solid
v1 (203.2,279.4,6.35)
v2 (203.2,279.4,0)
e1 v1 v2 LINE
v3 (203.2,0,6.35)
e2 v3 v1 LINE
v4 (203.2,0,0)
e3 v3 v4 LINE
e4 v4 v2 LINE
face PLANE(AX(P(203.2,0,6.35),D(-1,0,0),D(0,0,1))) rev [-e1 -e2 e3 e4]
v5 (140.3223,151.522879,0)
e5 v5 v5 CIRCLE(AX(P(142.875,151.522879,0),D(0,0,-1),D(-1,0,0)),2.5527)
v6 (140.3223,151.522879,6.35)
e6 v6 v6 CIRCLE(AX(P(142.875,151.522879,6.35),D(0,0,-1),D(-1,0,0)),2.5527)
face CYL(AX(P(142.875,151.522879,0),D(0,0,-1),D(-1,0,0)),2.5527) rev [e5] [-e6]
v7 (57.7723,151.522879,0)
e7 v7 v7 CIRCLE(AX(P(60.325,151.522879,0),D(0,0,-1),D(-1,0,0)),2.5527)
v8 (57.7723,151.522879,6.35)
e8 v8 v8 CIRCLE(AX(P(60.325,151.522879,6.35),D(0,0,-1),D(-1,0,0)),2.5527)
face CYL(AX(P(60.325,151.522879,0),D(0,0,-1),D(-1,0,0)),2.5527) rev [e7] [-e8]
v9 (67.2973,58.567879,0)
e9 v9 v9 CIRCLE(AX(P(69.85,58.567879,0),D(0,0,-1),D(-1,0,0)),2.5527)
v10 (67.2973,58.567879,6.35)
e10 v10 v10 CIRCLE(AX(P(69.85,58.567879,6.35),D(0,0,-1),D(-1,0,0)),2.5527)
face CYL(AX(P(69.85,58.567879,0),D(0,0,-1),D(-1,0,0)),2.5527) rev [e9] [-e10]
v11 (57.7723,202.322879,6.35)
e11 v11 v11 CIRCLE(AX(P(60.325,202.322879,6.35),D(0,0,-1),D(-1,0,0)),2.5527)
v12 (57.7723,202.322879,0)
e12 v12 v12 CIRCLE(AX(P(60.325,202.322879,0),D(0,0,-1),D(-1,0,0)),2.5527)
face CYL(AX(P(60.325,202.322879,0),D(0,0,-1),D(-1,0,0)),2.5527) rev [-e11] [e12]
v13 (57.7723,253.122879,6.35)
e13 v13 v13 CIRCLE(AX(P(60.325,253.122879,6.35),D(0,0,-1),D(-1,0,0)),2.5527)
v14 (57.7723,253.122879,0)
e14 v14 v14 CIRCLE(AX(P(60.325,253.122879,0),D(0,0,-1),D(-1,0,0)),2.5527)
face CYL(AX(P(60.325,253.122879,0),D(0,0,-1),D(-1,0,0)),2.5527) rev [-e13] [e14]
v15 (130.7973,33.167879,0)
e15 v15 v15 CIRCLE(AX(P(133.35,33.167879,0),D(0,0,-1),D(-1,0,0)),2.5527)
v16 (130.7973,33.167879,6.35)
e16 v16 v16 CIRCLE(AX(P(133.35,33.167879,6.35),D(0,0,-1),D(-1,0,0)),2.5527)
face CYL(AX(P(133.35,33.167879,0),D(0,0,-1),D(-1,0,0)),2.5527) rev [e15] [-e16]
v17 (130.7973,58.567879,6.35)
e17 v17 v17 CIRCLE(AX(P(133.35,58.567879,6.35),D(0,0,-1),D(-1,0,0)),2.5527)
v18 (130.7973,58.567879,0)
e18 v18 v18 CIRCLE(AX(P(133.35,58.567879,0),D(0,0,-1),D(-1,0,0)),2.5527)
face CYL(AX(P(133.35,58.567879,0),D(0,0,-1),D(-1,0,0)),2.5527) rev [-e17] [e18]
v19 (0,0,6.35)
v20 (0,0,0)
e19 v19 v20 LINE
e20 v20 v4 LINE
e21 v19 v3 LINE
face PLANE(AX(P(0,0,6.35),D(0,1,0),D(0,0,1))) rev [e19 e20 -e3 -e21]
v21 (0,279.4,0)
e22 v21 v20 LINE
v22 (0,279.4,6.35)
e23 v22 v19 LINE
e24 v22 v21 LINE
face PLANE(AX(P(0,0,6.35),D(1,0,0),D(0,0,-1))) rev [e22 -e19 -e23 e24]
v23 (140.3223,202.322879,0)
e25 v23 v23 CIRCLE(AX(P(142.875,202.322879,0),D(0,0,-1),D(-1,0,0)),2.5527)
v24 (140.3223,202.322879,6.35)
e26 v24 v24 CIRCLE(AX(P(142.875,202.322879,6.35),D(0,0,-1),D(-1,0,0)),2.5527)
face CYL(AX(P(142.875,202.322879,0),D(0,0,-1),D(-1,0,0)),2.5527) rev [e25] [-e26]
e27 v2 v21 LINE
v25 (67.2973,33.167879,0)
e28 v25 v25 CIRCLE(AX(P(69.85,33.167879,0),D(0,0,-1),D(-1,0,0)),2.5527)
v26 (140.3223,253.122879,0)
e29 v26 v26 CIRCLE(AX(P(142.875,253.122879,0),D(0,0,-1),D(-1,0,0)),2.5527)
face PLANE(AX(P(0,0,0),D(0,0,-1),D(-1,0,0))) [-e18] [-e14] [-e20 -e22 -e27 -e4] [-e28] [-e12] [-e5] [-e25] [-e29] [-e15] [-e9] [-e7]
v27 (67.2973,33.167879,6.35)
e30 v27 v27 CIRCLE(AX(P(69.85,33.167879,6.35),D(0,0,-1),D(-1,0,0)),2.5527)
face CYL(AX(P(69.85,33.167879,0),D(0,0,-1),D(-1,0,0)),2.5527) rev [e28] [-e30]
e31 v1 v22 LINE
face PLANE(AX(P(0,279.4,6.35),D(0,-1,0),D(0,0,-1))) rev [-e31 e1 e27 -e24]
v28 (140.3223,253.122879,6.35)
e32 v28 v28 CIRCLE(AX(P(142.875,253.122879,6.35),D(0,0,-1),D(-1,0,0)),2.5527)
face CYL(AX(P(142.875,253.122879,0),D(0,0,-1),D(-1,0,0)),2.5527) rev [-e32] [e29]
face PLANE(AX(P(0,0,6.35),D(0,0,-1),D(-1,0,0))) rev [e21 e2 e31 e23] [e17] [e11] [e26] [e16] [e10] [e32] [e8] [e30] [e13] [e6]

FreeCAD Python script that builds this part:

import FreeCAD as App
import Part
import Sketcher
Q = App.Units.Quantity


def add_polygon(sketch, points):
    """Adds a closed chain of lines whose ends are joined by coincident constraints."""
    first, n = sketch.GeometryCount, len(points)
    for a, b in zip(points, points[1:] + points[:1]):
        sketch.addGeometry(Part.LineSegment(App.Vector(*a, 0), App.Vector(*b, 0)), False)
    for i in range(n):
        sketch.addConstraint(Sketcher.Constraint("Coincident", first + i, 2, first + (i + 1) % n, 1))

doc = App.newDocument("Part")
body = doc.addObject("PartDesign::Body", "Body")

# Sketch on XY plane
sketch1 = body.newObject("Sketcher::SketchObject", "Sketch")
sketch1.AttachmentSupport = (doc.getObject("XY_Plane"), [""])
sketch1.MapMode = "FlatFace"
add_polygon(sketch1, [(0, 279.4), (0, 0), (203.2, 0), (203.2, 279.4)])  # lines 0-3
sketch1.addConstraint([
    Sketcher.Constraint("Vertical", 0),
    Sketcher.Constraint("Horizontal", 1),
    Sketcher.Constraint("Vertical", 2),
    Sketcher.Constraint("Horizontal", 3),
    Sketcher.Constraint("Coincident", 0, 2, -1, 1),
    Sketcher.Constraint("DistanceX", 1, 1, 1, 2, Q("8 in")),
    Sketcher.Constraint("DistanceY", 0, 2, 0, 1, Q("11 in")),
])
pad1 = body.newObject("PartDesign::Pad", "Pad")
pad1.Profile = sketch1
pad1.Length = Q("0.25 in")

# Sketch on XY plane
sketch2 = body.newObject("Sketcher::SketchObject", "Sketch001")
sketch2.AttachmentSupport = (doc.getObject("XY_Plane"), [""])
sketch2.MapMode = "FlatFace"
sketch2.addGeometry([
    Part.Circle(App.Vector(60.325, 253.122879, 0), App.Vector(0, 0, 1), 2.5527),  # 0
    Part.Circle(App.Vector(142.875, 253.122879, 0), App.Vector(0, 0, 1), 2.5527),  # 1
    Part.Circle(App.Vector(142.875, 202.322879, 0), App.Vector(0, 0, 1), 2.5527),  # 2
    Part.Circle(App.Vector(142.875, 151.522879, 0), App.Vector(0, 0, 1), 2.5527),  # 3
    Part.Circle(App.Vector(60.325, 151.522879, 0), App.Vector(0, 0, 1), 2.5527),  # 4
    Part.Circle(App.Vector(60.325, 202.322879, 0), App.Vector(0, 0, 1), 2.5527),  # 5
    Part.Circle(App.Vector(133.35, 58.567879, 0), App.Vector(0, 0, 1), 2.5527),  # 6
    Part.Circle(App.Vector(133.35, 33.167879, 0), App.Vector(0, 0, 1), 2.5527),  # 7
    Part.Circle(App.Vector(69.85, 33.167879, 0), App.Vector(0, 0, 1), 2.5527),  # 8
    Part.Circle(App.Vector(69.85, 58.567879, 0), App.Vector(0, 0, 1), 2.5527),  # 9
], False)
sketch2.addConstraint([
    Sketcher.Constraint("Equal", 0, 1),
    Sketcher.Constraint("Equal", 1, 2),
    Sketcher.Constraint("Equal", 2, 3),
    Sketcher.Constraint("Equal", 3, 4),
    Sketcher.Constraint("Equal", 4, 5),
    Sketcher.Constraint("Equal", 5, 6),
    Sketcher.Constraint("Equal", 6, 7),
    Sketcher.Constraint("Equal", 7, 8),
    Sketcher.Constraint("Equal", 8, 9),
    Sketcher.Constraint("Horizontal", 0, 3, 1, 3),
    Sketcher.Constraint("Horizontal", 3, 3, 4, 3),
    Sketcher.Constraint("Horizontal", 2, 3, 5, 3),
    Sketcher.Constraint("Horizontal", 7, 3, 8, 3),
    Sketcher.Constraint("Horizontal", 6, 3, 9, 3),
    Sketcher.Constraint("Vertical", 1, 3, 2, 3),
    Sketcher.Constraint("Vertical", 2, 3, 3, 3),
    Sketcher.Constraint("Vertical", 0, 3, 4, 3),
    Sketcher.Constraint("Vertical", 4, 3, 5, 3),
    Sketcher.Constraint("Vertical", 6, 3, 7, 3),
    Sketcher.Constraint("Vertical", 8, 3, 9, 3),
    Sketcher.Constraint("Diameter", 0, Q("0.201 in")),
    Sketcher.Constraint("DistanceY", 2, 3, 1, 3, Q("2 in")),
    Sketcher.Constraint("DistanceY", 3, 3, 2, 3, Q("2 in")),
    Sketcher.Constraint("DistanceY", 7, 3, 6, 3, Q("1 in")),
    Sketcher.Constraint("DistanceX", 8, 3, 7, 3, Q("2.5 in")),
    Sketcher.Constraint("DistanceX", -1, 1, 6, 3, Q("5.25 in")),
    Sketcher.Constraint("DistanceX", 0, 3, 1, 3, Q("3.25 in")),
    Sketcher.Constraint("DistanceX", -1, 1, 0, 3, Q("2.375 in")),
    Sketcher.Constraint("DistanceY", 6, 3, 3, 3, Q("92.955 mm")),
    Sketcher.Constraint("DistanceY", -1, 1, 0, 3, Q("253.122879 mm")),
])
doc.recompute()
hole = body.newObject("PartDesign::Hole", "Hole")
hole.Profile = sketch2
hole.ThreadType = "None"
hole.Diameter = Q("0.201 in")
hole.DepthType = "Dimension"
hole.Depth = Q("0.3469 in")
hole.DrillPoint = "Angled"
hole.DrillPointAngle = 118
hole.Reversed = True

doc.recompute()
